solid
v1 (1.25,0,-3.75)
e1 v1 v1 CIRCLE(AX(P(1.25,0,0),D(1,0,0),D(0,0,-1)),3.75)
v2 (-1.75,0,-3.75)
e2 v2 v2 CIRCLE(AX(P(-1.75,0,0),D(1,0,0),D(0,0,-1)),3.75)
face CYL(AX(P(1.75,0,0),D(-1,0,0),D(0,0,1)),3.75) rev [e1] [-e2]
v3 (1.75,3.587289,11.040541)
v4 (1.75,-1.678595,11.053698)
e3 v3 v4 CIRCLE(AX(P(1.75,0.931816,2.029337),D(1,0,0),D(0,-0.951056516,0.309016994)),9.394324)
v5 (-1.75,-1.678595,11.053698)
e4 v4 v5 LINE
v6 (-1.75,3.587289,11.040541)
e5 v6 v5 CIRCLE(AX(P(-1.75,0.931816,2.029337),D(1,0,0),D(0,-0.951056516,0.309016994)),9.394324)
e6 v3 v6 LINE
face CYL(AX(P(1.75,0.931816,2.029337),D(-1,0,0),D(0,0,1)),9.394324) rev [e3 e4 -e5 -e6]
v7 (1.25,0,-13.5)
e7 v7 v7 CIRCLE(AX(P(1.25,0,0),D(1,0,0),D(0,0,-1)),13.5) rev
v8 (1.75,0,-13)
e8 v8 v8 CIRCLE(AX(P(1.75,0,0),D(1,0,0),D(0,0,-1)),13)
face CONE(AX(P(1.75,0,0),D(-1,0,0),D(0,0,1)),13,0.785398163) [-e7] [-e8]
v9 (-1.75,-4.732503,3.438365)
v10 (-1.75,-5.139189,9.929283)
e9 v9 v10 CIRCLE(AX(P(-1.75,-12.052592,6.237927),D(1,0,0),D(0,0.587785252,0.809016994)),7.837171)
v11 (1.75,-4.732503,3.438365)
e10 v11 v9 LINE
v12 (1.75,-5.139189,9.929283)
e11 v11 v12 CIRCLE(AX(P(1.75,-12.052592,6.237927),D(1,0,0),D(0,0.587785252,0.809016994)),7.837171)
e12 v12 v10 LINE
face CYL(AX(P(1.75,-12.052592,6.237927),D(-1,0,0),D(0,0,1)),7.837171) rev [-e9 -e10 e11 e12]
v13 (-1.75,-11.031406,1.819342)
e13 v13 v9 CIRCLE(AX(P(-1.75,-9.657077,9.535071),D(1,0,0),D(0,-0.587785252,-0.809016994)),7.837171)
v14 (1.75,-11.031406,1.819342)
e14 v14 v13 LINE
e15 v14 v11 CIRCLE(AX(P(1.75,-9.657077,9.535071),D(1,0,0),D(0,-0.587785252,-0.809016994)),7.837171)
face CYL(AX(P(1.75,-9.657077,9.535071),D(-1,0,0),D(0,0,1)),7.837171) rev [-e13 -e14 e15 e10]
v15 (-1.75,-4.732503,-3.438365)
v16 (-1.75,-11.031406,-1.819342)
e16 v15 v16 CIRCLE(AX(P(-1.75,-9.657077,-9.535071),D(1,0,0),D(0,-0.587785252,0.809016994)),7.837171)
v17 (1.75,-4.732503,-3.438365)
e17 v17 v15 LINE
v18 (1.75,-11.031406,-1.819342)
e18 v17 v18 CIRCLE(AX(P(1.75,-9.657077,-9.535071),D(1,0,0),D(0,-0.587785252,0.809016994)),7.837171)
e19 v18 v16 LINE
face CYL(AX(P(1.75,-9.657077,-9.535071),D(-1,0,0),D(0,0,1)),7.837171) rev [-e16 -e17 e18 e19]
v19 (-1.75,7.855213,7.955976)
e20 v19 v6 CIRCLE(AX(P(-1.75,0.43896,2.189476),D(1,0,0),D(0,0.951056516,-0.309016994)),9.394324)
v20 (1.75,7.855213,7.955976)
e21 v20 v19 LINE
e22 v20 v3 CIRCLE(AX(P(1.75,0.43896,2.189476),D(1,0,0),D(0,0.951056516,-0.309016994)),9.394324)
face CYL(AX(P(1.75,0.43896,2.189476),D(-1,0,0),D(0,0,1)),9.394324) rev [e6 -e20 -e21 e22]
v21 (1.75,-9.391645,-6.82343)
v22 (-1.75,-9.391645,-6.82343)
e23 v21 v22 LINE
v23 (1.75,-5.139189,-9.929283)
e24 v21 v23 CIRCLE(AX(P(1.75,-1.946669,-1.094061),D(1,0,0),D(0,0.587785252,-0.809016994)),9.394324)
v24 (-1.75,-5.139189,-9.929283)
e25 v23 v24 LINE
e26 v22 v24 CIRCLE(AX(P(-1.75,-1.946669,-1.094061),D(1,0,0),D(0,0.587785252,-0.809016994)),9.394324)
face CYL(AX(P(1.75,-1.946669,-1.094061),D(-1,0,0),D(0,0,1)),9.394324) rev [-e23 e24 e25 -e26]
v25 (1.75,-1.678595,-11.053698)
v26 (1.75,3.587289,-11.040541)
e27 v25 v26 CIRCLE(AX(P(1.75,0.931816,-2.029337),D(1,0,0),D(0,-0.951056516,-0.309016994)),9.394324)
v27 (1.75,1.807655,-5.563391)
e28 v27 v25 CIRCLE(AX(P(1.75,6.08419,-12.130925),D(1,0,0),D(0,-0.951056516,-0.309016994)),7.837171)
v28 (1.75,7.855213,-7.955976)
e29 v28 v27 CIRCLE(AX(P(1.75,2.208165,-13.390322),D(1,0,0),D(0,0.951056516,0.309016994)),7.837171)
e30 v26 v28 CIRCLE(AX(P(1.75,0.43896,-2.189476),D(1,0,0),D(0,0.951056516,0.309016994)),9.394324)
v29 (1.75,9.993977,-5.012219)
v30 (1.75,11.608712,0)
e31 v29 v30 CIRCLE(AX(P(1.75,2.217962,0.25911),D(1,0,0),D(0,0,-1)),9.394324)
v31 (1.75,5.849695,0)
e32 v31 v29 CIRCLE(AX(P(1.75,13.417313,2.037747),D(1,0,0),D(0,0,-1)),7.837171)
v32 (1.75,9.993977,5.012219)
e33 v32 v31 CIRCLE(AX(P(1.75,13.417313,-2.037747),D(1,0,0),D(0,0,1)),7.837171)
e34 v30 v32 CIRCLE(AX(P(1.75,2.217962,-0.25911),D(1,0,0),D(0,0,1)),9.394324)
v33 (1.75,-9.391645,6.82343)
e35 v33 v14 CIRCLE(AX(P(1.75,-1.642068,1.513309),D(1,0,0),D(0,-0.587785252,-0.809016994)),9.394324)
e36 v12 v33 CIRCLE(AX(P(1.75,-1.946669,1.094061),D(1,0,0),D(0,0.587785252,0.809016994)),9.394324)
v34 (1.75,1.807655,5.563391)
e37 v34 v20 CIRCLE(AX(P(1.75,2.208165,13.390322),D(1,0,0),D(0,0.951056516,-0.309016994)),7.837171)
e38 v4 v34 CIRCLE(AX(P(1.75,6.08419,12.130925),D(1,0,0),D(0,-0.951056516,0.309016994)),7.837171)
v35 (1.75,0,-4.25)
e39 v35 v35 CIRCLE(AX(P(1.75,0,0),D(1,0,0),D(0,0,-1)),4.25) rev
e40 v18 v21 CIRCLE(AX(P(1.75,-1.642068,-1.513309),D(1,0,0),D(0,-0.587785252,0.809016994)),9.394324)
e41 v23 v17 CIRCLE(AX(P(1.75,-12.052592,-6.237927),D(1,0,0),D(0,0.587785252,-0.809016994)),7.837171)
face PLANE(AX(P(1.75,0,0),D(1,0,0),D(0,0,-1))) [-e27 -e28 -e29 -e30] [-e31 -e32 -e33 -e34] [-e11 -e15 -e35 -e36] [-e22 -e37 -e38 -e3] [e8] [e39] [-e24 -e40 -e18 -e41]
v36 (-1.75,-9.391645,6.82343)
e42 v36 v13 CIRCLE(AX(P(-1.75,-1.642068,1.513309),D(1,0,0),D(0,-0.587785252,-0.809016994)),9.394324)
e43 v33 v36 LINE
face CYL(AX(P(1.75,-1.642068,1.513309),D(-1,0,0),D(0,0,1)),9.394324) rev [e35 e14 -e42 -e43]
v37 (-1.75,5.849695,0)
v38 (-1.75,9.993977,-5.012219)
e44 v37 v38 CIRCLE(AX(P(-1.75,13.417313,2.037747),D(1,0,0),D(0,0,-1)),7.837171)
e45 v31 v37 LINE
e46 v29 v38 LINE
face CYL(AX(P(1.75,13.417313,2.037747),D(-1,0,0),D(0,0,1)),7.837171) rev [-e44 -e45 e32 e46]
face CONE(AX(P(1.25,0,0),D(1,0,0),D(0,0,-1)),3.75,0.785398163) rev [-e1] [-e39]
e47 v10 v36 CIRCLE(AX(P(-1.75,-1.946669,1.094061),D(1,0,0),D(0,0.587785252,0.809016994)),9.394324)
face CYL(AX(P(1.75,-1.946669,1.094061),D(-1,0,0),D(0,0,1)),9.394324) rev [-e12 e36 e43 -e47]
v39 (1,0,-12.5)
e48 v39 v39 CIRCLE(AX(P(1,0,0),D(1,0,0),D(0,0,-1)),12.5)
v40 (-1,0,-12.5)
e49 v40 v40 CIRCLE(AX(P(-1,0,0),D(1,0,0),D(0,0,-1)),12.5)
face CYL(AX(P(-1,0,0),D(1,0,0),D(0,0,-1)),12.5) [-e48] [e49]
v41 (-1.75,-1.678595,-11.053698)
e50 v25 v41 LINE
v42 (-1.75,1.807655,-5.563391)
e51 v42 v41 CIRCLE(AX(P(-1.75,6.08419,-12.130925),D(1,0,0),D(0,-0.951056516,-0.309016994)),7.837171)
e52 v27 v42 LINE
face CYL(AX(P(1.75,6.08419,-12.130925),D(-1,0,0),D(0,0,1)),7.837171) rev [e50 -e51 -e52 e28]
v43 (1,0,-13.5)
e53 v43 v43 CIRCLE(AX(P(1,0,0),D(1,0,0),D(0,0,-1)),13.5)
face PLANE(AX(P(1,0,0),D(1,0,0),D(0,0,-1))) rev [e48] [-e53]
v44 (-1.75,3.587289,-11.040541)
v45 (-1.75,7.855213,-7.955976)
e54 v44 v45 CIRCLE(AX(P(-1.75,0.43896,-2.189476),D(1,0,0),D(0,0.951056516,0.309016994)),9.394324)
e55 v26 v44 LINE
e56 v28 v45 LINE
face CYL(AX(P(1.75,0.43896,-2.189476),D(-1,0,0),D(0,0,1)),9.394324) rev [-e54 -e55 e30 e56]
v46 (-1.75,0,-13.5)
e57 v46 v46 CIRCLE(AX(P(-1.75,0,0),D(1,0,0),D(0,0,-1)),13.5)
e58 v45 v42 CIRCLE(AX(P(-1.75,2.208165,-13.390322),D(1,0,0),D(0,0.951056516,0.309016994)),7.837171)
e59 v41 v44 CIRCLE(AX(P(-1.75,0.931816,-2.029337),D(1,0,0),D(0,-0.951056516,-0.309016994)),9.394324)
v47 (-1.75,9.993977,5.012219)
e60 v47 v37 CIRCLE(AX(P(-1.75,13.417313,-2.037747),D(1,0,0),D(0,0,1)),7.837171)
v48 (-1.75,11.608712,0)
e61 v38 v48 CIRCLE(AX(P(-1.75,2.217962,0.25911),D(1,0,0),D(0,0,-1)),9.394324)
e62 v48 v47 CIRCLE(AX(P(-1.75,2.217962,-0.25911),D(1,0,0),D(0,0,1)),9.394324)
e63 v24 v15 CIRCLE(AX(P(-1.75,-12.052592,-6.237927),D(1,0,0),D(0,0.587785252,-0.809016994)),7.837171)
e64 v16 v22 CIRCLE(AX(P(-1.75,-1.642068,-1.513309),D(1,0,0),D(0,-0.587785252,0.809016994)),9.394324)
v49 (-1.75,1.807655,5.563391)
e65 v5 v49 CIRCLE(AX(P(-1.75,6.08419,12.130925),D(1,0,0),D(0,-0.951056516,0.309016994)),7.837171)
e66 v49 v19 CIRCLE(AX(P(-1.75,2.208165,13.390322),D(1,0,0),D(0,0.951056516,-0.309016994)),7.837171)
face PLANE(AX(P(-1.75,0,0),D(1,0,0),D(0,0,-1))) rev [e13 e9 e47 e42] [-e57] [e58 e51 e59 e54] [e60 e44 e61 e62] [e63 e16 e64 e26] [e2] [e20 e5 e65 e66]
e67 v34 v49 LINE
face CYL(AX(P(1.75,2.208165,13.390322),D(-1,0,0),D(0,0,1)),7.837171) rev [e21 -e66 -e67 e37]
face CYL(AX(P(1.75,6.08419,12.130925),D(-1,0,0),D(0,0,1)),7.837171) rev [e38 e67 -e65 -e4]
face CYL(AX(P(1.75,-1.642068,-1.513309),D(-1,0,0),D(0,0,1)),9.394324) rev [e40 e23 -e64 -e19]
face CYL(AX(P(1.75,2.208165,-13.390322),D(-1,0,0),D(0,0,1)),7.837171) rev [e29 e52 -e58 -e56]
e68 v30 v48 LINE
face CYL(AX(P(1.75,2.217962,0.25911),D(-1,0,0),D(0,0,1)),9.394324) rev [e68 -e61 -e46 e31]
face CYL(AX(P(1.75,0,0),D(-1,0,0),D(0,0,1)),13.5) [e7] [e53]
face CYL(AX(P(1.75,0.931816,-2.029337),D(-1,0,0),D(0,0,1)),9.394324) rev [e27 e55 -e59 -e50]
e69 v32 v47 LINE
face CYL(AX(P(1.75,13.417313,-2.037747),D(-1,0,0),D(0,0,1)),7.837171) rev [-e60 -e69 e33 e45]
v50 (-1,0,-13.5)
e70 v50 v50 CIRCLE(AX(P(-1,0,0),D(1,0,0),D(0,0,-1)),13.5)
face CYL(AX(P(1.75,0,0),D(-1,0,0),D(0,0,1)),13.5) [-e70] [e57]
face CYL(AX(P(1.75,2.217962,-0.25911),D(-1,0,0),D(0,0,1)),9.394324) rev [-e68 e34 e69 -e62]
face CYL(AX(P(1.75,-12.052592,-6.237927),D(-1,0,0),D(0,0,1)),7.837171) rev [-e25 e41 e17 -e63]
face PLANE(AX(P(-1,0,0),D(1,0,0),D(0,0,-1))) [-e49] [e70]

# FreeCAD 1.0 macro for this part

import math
import FreeCAD as App
import Part
import Sketcher

V = App.Vector
Q = App.Units.Quantity


def edges_at(feature, points):
    """Names of the edges that pass closest to the given points."""
    edges = feature.Shape.Edges
    near = lambda p: min(range(len(edges)), key=lambda i: edges[i].distToShape(Part.Vertex(*p))[0])
    return sorted({f"Edge{near(p) + 1}" for p in points})

doc = App.newDocument("Part")
body = doc.addObject("PartDesign::Body", "Body")

sketch1 = body.newObject("Sketcher::SketchObject", "Sketch")
sketch1.AttachmentSupport = (doc.getObject("YZ_Plane"), [""])
sketch1.MapMode = "FlatFace"
sketch1.addGeometry([
    Part.Circle(V(0, 0, 0), V(0, 0, 1), 13.5),
    Part.Circle(V(0, 0, 0), V(0, 0, 1), 3.75),
], False)
sketch1.addConstraint([
    Sketcher.Constraint("Coincident", 0, 3, -1, 1),
    Sketcher.Constraint("Coincident", 1, 3, -1, 1),
    Sketcher.Constraint("Diameter", 0, Q("27 mm")),
    Sketcher.Constraint("Diameter", 1, Q("7.5 mm")),
])
pad1 = body.newObject("PartDesign::Pad", "Pad")
pad1.Profile = sketch1
pad1.Length = 3.5
pad1.Midplane = True

sketch2 = body.newObject("Sketcher::SketchObject", "Sketch001")
sketch2.AttachmentSupport = (doc.getObject("YZ_Plane"), [""])
sketch2.MapMode = "FlatFace"
sketch2.addGeometry([
    Part.ArcOfCircle(Part.Circle(V(13.417313, -2.037747, 0), V(0, 0, 1), 7.837171), math.radians(115.900372), math.radians(164.929315)),
    Part.ArcOfCircle(Part.Circle(V(13.417313, 2.037747, 0), V(0, 0, 1), 7.837171), math.radians(-164.929315), math.radians(-115.900372)),
    Part.ArcOfCircle(Part.Circle(V(2.217962, 0.25911, 0), V(0, 0, 1), 9.394324), math.radians(-34.133185), math.radians(-1.580505)),
    Part.ArcOfCircle(Part.Circle(V(2.217962, -0.25911, 0), V(0, 0, 1), 9.394324), math.radians(1.580505), math.radians(34.133185)),
], False)
sketch2.addConstraint([
    Sketcher.Constraint("Coincident", 0, 2, 1, 1),
    Sketcher.Constraint("Coincident", 1, 2, 2, 1),
    Sketcher.Constraint("Coincident", 2, 2, 3, 1),
    Sketcher.Constraint("Coincident", 3, 2, 0, 1),
    Sketcher.Constraint("Equal", 0, 1),
    Sketcher.Constraint("Equal", 2, 3),
    Sketcher.Constraint("Symmetric", 0, 3, 1, 3, -1),
    Sketcher.Constraint("Symmetric", 2, 3, 3, 3, -1),
    Sketcher.Constraint("Radius", 0, Q("7.837171 mm")),
    Sketcher.Constraint("Radius", 2, Q("9.394324 mm")),
    Sketcher.Constraint("DistanceX", 2, 2, 1, 3, Q("1.808602 mm")),
    Sketcher.Constraint("DistanceX", -1, 1, 2, 3, Q("2.217962 mm")),
    Sketcher.Constraint("DistanceY", -1, 1, 2, 3, Q("0.25911 mm")),
    Sketcher.Constraint("DistanceY", 1, 2, -1, 1, Q("5.012219 mm")),
])
pocket1 = body.newObject("PartDesign::Pocket", "Pocket")
pocket1.Profile = sketch2
pocket1.Length = 40.343839
pocket1.Midplane = True
doc.recompute()

polarpattern = body.newObject("PartDesign::PolarPattern", "PolarPattern")
polarpattern.Originals = [pocket1]
polarpattern.Axis = (doc.getObject("X_Axis"), [""])
polarpattern.Angle = 360
polarpattern.Occurrences = 5
body.Tip = polarpattern
doc.recompute()

chamfer = body.newObject("PartDesign::Chamfer", "Chamfer")
chamfer.Base = (polarpattern, edges_at(polarpattern, [(1.75, 0, 13.5), (1.75, 0, 3.75)]))
chamfer.Size = 0.5

sketch3 = body.newObject("Sketcher::SketchObject", "Sketch002")
sketch3.AttachmentSupport = (doc.getObject("YZ_Plane"), [""])
sketch3.MapMode = "FlatFace"
sketch3.addGeometry([
    Part.Circle(V(0, 0, 0), V(0, 0, 1), 13.5),
    Part.Circle(V(0, 0, 0), V(0, 0, 1), 12.5),
], False)
sketch3.addConstraint([
    Sketcher.Constraint("Coincident", 0, 3, -1, 1),
    Sketcher.Constraint("Coincident", 1, 3, -1, 1),
    Sketcher.Constraint("Diameter", 0, Q("27 mm")),
    Sketcher.Constraint("Diameter", 1, Q("25 mm")),
])
pocket2 = body.newObject("PartDesign::Pocket", "Pocket001")
pocket2.Profile = sketch3
pocket2.Length = 2
pocket2.Midplane = True

doc.recompute()
